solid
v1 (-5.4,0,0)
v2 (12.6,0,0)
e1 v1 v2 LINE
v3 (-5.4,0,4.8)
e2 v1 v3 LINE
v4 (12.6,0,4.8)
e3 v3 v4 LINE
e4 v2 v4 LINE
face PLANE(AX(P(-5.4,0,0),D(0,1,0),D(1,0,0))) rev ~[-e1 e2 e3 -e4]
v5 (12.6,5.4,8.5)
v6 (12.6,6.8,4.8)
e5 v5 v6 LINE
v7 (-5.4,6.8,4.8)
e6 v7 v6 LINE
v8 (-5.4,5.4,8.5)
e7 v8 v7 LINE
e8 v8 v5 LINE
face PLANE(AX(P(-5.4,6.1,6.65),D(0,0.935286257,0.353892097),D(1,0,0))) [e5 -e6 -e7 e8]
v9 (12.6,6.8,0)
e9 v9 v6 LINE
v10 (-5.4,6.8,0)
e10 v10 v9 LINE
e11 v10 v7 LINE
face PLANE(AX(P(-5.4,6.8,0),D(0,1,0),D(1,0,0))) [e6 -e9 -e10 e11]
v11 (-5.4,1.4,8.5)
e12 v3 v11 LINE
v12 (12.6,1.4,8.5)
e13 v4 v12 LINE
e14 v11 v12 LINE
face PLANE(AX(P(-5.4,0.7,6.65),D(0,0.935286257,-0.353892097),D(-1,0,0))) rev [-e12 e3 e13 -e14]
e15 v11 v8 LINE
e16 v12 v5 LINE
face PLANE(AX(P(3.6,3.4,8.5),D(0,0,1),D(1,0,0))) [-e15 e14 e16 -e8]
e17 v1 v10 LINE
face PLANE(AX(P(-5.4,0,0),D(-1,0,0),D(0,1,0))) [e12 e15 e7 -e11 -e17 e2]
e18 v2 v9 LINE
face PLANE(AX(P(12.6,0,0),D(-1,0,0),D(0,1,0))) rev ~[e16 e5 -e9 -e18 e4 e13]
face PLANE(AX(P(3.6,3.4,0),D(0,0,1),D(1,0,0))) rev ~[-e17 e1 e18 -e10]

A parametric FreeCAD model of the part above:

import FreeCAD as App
import Part
import Sketcher
Q = App.Units.Quantity


def edges_at(feature, points):
    """Names of the edges that pass closest to the given points."""
    edges = feature.Shape.Edges
    near = lambda p: min(range(len(edges)), key=lambda i: edges[i].distToShape(Part.Vertex(*p))[0])
    return sorted({f"Edge{near(p) + 1}" for p in points})

doc = App.newDocument("Part")
params = doc.addObject("Spreadsheet::Sheet", "Params")
for row, (alias, value) in enumerate([
    ("sketch1_width", "18 mm"),
    ("sketch1_height", "6.8 mm"),
    ("pad1_length", "8.5 mm"),
    ("chamfer_size", "3.7 mm"),
    ("chamfer_size2", "1.4 mm"),
    ("chamfer2_size", "1.4 mm"),
    ("chamfer2_size2", "3.7 mm"),
], start=1):
    params.set(f"A{row}", alias)
    params.set(f"B{row}", "=" + value)
    params.setAlias(f"B{row}", alias)

body = doc.addObject("PartDesign::Body", "Body")

# Sketch on XY plane
sketch1 = doc.addObject("Sketcher::SketchObject", "Sketch")
body.addObject(sketch1)
sketch1.AttachmentSupport = (doc.XY_Plane, [""])
sketch1.MapMode = "FlatFace"
sketch1.addGeometry(Part.LineSegment(App.Vector(21, 7, 0), App.Vector(21, 0, 0)), False)
sketch1.addGeometry(Part.LineSegment(App.Vector(21, 0, 0), App.Vector(39, 0, 0)), False)
sketch1.addGeometry(Part.LineSegment(App.Vector(39, 0, 0), App.Vector(39, 7, 0)), False)
sketch1.addGeometry(Part.LineSegment(App.Vector(39, 7, 0), App.Vector(21, 7, 0)), False)
sketch1.addConstraint(Sketcher.Constraint("Coincident", 0, 2, 1, 1))
sketch1.addConstraint(Sketcher.Constraint("Coincident", 1, 2, 2, 1))
sketch1.addConstraint(Sketcher.Constraint("Coincident", 2, 2, 3, 1))
sketch1.addConstraint(Sketcher.Constraint("Coincident", 3, 2, 0, 1))
sketch1.addConstraint(Sketcher.Constraint("Vertical", 0))
sketch1.addConstraint(Sketcher.Constraint("Horizontal", 1))
sketch1.addConstraint(Sketcher.Constraint("Vertical", 2))
sketch1.addConstraint(Sketcher.Constraint("Horizontal", 3))
sketch1.addConstraint(Sketcher.Constraint("PointOnObject", 0, 2, -1))
sketch1.addConstraint(Sketcher.Constraint("DistanceX", 1, 1, 1, 2, Q("18 mm")))
sketch1.addConstraint(Sketcher.Constraint("DistanceY", 0, 2, 0, 1, Q("6.8 mm")))
sketch1.addConstraint(Sketcher.Constraint("DistanceX", -1, 1, 0, 2, Q("21.3 mm")))
sketch1.setExpression("Constraints[9]", "Params.sketch1_width")
sketch1.setExpression("Constraints[10]", "Params.sketch1_height")
pad1 = doc.addObject("PartDesign::Pad", "Pad")
body.addObject(pad1)
pad1.Profile = sketch1
pad1.setExpression("Length", "Params.pad1_length")
doc.recompute()

chamfer = doc.addObject("PartDesign::Chamfer", "Chamfer")
body.addObject(chamfer)
chamfer.Base = (pad1, edges_at(pad1, [(30.3, 0, 8.5)]))
chamfer.ChamferType = "Two distances"
chamfer.setExpression("Size", "Params.chamfer_size")
chamfer.setExpression("Size2", "Params.chamfer_size2")
doc.recompute()

chamfer2 = doc.addObject("PartDesign::Chamfer", "Chamfer001")
body.addObject(chamfer2)
chamfer2.Base = (chamfer, edges_at(chamfer, [(30.3, 6.8, 8.5)]))
chamfer2.ChamferType = "Two distances"
chamfer2.setExpression("Size", "Params.chamfer2_size")
chamfer2.setExpression("Size2", "Params.chamfer2_size2")
body2 = doc.addObject("PartDesign::Body", "Body001")
doc.recompute()

body.Placement = App.Placement(App.Vector(-26.7, 0, 0), App.Rotation(App.Vector(0, 0, 1), 0))
boolean = doc.addObject("PartDesign::Boolean", "Boolean")
body2.addObject(boolean)
boolean.Type = "Fuse"
boolean.addObjects([body])

doc.recompute()
